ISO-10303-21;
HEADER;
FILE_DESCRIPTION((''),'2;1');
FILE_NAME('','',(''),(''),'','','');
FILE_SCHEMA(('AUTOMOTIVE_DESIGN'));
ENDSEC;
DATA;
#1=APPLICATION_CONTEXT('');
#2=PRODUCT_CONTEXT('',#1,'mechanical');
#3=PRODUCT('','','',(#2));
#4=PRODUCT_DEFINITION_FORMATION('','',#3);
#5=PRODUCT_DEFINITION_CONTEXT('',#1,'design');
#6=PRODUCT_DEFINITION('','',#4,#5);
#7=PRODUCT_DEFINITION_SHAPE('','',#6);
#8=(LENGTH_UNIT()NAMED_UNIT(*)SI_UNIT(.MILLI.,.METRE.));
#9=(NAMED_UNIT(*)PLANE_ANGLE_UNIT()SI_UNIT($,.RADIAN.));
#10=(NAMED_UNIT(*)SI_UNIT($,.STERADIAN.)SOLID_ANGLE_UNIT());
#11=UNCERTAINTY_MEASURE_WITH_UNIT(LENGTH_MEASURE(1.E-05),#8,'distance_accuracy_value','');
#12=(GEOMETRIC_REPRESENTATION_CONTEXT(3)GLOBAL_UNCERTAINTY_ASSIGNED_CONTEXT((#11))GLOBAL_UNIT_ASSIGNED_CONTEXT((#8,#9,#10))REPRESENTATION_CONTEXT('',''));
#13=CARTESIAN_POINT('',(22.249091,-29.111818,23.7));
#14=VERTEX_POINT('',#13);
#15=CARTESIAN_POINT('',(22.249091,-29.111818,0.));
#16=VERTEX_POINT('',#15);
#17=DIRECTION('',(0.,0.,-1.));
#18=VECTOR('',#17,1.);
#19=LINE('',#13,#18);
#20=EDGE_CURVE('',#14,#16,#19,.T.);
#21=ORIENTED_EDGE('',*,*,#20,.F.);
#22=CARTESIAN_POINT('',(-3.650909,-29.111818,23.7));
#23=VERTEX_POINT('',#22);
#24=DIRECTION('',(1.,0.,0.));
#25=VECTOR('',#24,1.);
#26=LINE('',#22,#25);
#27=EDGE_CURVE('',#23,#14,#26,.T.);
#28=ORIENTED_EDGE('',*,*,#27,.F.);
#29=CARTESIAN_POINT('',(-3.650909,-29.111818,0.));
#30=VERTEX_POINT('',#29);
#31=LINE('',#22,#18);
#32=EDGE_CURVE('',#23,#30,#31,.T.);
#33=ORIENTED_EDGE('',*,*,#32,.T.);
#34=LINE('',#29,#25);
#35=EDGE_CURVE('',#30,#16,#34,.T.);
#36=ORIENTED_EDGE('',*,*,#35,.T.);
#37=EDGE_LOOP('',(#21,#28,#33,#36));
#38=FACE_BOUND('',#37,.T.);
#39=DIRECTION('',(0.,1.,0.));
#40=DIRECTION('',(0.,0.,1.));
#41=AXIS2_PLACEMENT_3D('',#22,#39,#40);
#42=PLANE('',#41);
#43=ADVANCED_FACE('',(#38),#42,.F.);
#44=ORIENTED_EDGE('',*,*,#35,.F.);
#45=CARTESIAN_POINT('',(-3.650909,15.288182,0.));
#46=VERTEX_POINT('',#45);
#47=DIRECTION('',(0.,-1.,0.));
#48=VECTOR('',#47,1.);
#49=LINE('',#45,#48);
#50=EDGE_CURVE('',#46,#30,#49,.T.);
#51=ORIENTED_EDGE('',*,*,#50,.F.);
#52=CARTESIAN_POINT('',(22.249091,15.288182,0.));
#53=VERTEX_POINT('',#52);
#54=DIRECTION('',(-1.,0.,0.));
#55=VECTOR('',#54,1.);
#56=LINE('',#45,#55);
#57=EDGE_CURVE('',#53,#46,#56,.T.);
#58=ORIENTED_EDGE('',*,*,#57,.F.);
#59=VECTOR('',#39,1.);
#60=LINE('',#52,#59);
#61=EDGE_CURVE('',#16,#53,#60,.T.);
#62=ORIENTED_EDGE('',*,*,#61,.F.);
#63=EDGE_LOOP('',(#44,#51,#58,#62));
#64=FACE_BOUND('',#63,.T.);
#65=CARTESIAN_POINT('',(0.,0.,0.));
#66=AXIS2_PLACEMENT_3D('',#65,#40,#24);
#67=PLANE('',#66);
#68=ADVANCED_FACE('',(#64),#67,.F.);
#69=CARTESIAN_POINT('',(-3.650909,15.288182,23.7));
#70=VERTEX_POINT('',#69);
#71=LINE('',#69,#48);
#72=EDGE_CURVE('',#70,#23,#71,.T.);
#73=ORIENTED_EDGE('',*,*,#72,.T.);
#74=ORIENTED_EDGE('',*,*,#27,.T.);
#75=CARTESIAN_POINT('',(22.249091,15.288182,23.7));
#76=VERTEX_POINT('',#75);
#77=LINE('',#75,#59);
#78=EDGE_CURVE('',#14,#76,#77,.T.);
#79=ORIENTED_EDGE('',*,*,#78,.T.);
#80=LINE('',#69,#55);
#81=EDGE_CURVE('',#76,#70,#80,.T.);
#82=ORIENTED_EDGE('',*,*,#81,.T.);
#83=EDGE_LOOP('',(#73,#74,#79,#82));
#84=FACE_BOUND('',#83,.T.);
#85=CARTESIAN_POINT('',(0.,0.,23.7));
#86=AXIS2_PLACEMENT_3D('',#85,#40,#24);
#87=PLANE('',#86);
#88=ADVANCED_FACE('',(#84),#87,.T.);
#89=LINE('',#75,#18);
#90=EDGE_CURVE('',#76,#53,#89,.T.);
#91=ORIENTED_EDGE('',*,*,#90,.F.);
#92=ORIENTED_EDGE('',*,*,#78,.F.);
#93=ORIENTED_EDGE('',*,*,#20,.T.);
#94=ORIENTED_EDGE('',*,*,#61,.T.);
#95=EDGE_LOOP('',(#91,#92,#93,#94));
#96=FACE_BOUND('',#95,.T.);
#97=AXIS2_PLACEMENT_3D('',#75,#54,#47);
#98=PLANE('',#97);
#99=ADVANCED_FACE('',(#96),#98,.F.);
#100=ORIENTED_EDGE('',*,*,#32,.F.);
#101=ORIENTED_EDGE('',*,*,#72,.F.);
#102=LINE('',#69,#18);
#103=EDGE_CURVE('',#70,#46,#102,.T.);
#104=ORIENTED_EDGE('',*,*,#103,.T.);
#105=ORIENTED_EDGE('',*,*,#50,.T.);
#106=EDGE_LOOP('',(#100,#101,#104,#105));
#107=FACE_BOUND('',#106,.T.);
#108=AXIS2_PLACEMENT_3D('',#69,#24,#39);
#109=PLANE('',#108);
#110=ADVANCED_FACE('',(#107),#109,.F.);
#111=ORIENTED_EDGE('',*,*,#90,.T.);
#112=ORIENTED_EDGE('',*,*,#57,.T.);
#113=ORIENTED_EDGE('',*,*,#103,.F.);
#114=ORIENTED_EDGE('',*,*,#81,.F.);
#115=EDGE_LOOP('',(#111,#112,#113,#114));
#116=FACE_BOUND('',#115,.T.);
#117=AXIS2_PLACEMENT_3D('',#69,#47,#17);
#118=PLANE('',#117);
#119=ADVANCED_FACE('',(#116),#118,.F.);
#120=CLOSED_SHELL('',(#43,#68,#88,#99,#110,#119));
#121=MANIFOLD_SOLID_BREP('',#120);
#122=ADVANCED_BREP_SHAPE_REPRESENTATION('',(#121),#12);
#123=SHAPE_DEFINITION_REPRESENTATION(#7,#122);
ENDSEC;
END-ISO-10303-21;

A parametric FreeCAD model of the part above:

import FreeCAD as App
import Part
import Sketcher


def add_polygon(sketch, points):
    """Adds a closed chain of lines whose ends are joined by coincident constraints."""
    first, n = sketch.GeometryCount, len(points)
    for a, b in zip(points, points[1:] + points[:1]):
        sketch.addGeometry(Part.LineSegment(App.Vector(*a, 0), App.Vector(*b, 0)), False)
    for i in range(n):
        sketch.addConstraint(Sketcher.Constraint("Coincident", first + i, 2, first + (i + 1) % n, 1))

doc = App.newDocument("Part")
body = doc.addObject("PartDesign::Body", "Body")

sketch1 = doc.addObject("Sketcher::SketchObject", "Sketch")
body.addObject(sketch1)
sketch1.AttachmentSupport = (doc.XY_Plane, [""])
sketch1.MapMode = "FlatFace"
add_polygon(sketch1, [(-3.650909, 15.288182), (-3.650909, -29.111818), (22.249091, -29.111818), (22.249091, 15.288182)])
sketch1.addConstraint(Sketcher.Constraint("Vertical", 0))
sketch1.addConstraint(Sketcher.Constraint("Horizontal", 1))
sketch1.addConstraint(Sketcher.Constraint("Vertical", 2))
sketch1.addConstraint(Sketcher.Constraint("Horizontal", 3))
sketch1.addConstraint(Sketcher.Constraint("DistanceX", 1, 1, 1, 2, 25.9))
sketch1.addConstraint(Sketcher.Constraint("DistanceY", 0, 2, 0, 1, 44.4))
sketch1.addConstraint(Sketcher.Constraint("DistanceX", 0, 2, -1, 1, 3.650909))
sketch1.addConstraint(Sketcher.Constraint("DistanceY", 0, 2, -1, 1, 29.111818))
pad1 = doc.addObject("PartDesign::Pad", "Pad")
body.addObject(pad1)
pad1.Profile = sketch1
pad1.Length = 23.7

doc.recompute()
